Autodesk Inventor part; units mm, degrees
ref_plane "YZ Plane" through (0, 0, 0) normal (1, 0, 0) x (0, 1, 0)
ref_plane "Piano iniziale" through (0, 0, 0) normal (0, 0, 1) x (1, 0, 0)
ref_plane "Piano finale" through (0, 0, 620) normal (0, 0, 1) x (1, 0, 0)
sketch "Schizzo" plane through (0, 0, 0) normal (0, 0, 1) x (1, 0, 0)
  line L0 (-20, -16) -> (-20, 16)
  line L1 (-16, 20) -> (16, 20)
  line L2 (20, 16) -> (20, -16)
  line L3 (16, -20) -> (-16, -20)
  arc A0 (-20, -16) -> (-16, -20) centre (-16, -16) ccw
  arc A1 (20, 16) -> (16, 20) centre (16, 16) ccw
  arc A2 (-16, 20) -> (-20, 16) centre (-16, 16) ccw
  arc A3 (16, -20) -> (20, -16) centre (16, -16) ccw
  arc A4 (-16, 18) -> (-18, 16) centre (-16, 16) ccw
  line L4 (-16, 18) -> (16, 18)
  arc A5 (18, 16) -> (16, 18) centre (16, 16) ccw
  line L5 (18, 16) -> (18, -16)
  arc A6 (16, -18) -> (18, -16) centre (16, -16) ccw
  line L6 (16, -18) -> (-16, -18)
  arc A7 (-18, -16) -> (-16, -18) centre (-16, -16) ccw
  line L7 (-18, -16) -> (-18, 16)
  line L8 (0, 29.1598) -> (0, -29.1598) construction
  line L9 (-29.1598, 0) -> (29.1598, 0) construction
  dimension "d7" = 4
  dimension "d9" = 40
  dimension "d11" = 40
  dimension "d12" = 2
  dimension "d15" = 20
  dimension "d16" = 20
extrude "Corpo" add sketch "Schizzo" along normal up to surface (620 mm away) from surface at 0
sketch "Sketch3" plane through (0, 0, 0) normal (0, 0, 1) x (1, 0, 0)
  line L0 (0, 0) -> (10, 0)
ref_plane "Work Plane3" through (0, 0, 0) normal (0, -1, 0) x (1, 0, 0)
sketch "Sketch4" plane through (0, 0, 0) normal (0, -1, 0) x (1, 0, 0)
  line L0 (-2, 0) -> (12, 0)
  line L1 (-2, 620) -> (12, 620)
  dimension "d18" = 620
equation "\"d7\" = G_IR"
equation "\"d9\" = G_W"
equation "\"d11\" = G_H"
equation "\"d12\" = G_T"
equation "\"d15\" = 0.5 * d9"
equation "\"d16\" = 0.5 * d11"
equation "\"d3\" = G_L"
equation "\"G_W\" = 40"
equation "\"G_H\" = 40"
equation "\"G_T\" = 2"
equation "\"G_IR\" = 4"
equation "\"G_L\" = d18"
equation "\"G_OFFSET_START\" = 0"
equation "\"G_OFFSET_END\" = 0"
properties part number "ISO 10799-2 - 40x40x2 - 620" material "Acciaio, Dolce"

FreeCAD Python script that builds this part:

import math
import FreeCAD as App
import Part
import Sketcher
Q = App.Units.Quantity

doc = App.newDocument("Part")
body = doc.addObject("PartDesign::Body", "Body")

# Sketch on XY plane
sketch1 = body.newObject("Sketcher::SketchObject", "Sketch")
sketch1.AttachmentSupport = (doc.getObject("XY_Plane"), [""])
sketch1.MapMode = "FlatFace"
sketch1.addGeometry(Part.LineSegment(App.Vector(-20, 16, 0), App.Vector(-20, -16, 0)), False)
sketch1.addGeometry(Part.ArcOfCircle(Part.Circle(App.Vector(-16, -16, 0), App.Vector(0, 0, 1), 4), math.radians(180), math.radians(270)), False)
sketch1.addGeometry(Part.LineSegment(App.Vector(-16, -20, 0), App.Vector(16, -20, 0)), False)
sketch1.addGeometry(Part.ArcOfCircle(Part.Circle(App.Vector(16, -16, 0), App.Vector(0, 0, 1), 4), math.radians(-90), math.radians(0)), False)
sketch1.addGeometry(Part.LineSegment(App.Vector(20, -16, 0), App.Vector(20, 16, 0)), False)
sketch1.addGeometry(Part.ArcOfCircle(Part.Circle(App.Vector(16, 16, 0), App.Vector(0, 0, 1), 4), math.radians(0), math.radians(90)), False)
sketch1.addGeometry(Part.LineSegment(App.Vector(16, 20, 0), App.Vector(-16, 20, 0)), False)
sketch1.addGeometry(Part.ArcOfCircle(Part.Circle(App.Vector(-16, 16, 0), App.Vector(0, 0, 1), 4), math.radians(90), math.radians(180)), False)
sketch1.addGeometry(Part.ArcOfCircle(Part.Circle(App.Vector(-16, 16, 0), App.Vector(0, 0, 1), 2), math.radians(90), math.radians(180)), False)
sketch1.addGeometry(Part.LineSegment(App.Vector(-16, 18, 0), App.Vector(16, 18, 0)), False)
sketch1.addGeometry(Part.ArcOfCircle(Part.Circle(App.Vector(16, 16, 0), App.Vector(0, 0, 1), 2), math.radians(0), math.radians(90)), False)
sketch1.addGeometry(Part.LineSegment(App.Vector(18, 16, 0), App.Vector(18, -16, 0)), False)
sketch1.addGeometry(Part.ArcOfCircle(Part.Circle(App.Vector(16, -16, 0), App.Vector(0, 0, 1), 2), math.radians(-90), math.radians(0)), False)
sketch1.addGeometry(Part.LineSegment(App.Vector(16, -18, 0), App.Vector(-16, -18, 0)), False)
sketch1.addGeometry(Part.ArcOfCircle(Part.Circle(App.Vector(-16, -16, 0), App.Vector(0, 0, 1), 2), math.radians(180), math.radians(270)), False)
sketch1.addGeometry(Part.LineSegment(App.Vector(-18, -16, 0), App.Vector(-18, 16, 0)), False)
sketch1.addConstraint(Sketcher.Constraint("Tangent", 0, 2, 1, 1))
sketch1.addConstraint(Sketcher.Constraint("Tangent", 1, 2, 2, 1))
sketch1.addConstraint(Sketcher.Constraint("Tangent", 2, 2, 3, 1))
sketch1.addConstraint(Sketcher.Constraint("Tangent", 3, 2, 4, 1))
sketch1.addConstraint(Sketcher.Constraint("Tangent", 4, 2, 5, 1))
sketch1.addConstraint(Sketcher.Constraint("Tangent", 5, 2, 6, 1))
sketch1.addConstraint(Sketcher.Constraint("Tangent", 6, 2, 7, 1))
sketch1.addConstraint(Sketcher.Constraint("Tangent", 7, 2, 0, 1))
sketch1.addConstraint(Sketcher.Constraint("Tangent", 8, 1, 9, 1))
sketch1.addConstraint(Sketcher.Constraint("Tangent", 9, 2, 10, 2))
sketch1.addConstraint(Sketcher.Constraint("Tangent", 10, 1, 11, 1))
sketch1.addConstraint(Sketcher.Constraint("Tangent", 11, 2, 12, 2))
sketch1.addConstraint(Sketcher.Constraint("Tangent", 12, 1, 13, 1))
sketch1.addConstraint(Sketcher.Constraint("Tangent", 13, 2, 14, 2))
sketch1.addConstraint(Sketcher.Constraint("Tangent", 14, 1, 15, 1))
sketch1.addConstraint(Sketcher.Constraint("Tangent", 15, 2, 8, 2))
sketch1.addConstraint(Sketcher.Constraint("Vertical", 0))
sketch1.addConstraint(Sketcher.Constraint("Horizontal", 2))
sketch1.addConstraint(Sketcher.Constraint("Vertical", 4))
sketch1.addConstraint(Sketcher.Constraint("Horizontal", 6))
sketch1.addConstraint(Sketcher.Constraint("Horizontal", 9))
sketch1.addConstraint(Sketcher.Constraint("Vertical", 11))
sketch1.addConstraint(Sketcher.Constraint("Horizontal", 13))
sketch1.addConstraint(Sketcher.Constraint("Vertical", 15))
sketch1.addConstraint(Sketcher.Constraint("Coincident", 8, 3, 7, 3))
sketch1.addConstraint(Sketcher.Constraint("Coincident", 10, 3, 5, 3))
sketch1.addConstraint(Sketcher.Constraint("Coincident", 12, 3, 3, 3))
sketch1.addConstraint(Sketcher.Constraint("Equal", 1, 3))
sketch1.addConstraint(Sketcher.Constraint("Equal", 3, 5))
sketch1.addConstraint(Sketcher.Constraint("Equal", 5, 7))
sketch1.addConstraint(Sketcher.Constraint("Equal", 12, 14))
sketch1.addConstraint(Sketcher.Constraint("Symmetric", 1, 3, 5, 3, -1, 1))
sketch1.addConstraint(Sketcher.Constraint("Equal", 13, 0))
sketch1.addConstraint(Sketcher.Constraint("Radius", 1, Q("4 mm")))
sketch1.addConstraint(Sketcher.Constraint("Radius", 8, Q("2 mm")))
sketch1.addConstraint(Sketcher.Constraint("DistanceX", 0, 2, -1, 1, Q("20 mm")))
pad1 = body.newObject("PartDesign::Pad", "Pad")
pad1.Profile = sketch1
pad1.Length = 620

doc.recompute()
